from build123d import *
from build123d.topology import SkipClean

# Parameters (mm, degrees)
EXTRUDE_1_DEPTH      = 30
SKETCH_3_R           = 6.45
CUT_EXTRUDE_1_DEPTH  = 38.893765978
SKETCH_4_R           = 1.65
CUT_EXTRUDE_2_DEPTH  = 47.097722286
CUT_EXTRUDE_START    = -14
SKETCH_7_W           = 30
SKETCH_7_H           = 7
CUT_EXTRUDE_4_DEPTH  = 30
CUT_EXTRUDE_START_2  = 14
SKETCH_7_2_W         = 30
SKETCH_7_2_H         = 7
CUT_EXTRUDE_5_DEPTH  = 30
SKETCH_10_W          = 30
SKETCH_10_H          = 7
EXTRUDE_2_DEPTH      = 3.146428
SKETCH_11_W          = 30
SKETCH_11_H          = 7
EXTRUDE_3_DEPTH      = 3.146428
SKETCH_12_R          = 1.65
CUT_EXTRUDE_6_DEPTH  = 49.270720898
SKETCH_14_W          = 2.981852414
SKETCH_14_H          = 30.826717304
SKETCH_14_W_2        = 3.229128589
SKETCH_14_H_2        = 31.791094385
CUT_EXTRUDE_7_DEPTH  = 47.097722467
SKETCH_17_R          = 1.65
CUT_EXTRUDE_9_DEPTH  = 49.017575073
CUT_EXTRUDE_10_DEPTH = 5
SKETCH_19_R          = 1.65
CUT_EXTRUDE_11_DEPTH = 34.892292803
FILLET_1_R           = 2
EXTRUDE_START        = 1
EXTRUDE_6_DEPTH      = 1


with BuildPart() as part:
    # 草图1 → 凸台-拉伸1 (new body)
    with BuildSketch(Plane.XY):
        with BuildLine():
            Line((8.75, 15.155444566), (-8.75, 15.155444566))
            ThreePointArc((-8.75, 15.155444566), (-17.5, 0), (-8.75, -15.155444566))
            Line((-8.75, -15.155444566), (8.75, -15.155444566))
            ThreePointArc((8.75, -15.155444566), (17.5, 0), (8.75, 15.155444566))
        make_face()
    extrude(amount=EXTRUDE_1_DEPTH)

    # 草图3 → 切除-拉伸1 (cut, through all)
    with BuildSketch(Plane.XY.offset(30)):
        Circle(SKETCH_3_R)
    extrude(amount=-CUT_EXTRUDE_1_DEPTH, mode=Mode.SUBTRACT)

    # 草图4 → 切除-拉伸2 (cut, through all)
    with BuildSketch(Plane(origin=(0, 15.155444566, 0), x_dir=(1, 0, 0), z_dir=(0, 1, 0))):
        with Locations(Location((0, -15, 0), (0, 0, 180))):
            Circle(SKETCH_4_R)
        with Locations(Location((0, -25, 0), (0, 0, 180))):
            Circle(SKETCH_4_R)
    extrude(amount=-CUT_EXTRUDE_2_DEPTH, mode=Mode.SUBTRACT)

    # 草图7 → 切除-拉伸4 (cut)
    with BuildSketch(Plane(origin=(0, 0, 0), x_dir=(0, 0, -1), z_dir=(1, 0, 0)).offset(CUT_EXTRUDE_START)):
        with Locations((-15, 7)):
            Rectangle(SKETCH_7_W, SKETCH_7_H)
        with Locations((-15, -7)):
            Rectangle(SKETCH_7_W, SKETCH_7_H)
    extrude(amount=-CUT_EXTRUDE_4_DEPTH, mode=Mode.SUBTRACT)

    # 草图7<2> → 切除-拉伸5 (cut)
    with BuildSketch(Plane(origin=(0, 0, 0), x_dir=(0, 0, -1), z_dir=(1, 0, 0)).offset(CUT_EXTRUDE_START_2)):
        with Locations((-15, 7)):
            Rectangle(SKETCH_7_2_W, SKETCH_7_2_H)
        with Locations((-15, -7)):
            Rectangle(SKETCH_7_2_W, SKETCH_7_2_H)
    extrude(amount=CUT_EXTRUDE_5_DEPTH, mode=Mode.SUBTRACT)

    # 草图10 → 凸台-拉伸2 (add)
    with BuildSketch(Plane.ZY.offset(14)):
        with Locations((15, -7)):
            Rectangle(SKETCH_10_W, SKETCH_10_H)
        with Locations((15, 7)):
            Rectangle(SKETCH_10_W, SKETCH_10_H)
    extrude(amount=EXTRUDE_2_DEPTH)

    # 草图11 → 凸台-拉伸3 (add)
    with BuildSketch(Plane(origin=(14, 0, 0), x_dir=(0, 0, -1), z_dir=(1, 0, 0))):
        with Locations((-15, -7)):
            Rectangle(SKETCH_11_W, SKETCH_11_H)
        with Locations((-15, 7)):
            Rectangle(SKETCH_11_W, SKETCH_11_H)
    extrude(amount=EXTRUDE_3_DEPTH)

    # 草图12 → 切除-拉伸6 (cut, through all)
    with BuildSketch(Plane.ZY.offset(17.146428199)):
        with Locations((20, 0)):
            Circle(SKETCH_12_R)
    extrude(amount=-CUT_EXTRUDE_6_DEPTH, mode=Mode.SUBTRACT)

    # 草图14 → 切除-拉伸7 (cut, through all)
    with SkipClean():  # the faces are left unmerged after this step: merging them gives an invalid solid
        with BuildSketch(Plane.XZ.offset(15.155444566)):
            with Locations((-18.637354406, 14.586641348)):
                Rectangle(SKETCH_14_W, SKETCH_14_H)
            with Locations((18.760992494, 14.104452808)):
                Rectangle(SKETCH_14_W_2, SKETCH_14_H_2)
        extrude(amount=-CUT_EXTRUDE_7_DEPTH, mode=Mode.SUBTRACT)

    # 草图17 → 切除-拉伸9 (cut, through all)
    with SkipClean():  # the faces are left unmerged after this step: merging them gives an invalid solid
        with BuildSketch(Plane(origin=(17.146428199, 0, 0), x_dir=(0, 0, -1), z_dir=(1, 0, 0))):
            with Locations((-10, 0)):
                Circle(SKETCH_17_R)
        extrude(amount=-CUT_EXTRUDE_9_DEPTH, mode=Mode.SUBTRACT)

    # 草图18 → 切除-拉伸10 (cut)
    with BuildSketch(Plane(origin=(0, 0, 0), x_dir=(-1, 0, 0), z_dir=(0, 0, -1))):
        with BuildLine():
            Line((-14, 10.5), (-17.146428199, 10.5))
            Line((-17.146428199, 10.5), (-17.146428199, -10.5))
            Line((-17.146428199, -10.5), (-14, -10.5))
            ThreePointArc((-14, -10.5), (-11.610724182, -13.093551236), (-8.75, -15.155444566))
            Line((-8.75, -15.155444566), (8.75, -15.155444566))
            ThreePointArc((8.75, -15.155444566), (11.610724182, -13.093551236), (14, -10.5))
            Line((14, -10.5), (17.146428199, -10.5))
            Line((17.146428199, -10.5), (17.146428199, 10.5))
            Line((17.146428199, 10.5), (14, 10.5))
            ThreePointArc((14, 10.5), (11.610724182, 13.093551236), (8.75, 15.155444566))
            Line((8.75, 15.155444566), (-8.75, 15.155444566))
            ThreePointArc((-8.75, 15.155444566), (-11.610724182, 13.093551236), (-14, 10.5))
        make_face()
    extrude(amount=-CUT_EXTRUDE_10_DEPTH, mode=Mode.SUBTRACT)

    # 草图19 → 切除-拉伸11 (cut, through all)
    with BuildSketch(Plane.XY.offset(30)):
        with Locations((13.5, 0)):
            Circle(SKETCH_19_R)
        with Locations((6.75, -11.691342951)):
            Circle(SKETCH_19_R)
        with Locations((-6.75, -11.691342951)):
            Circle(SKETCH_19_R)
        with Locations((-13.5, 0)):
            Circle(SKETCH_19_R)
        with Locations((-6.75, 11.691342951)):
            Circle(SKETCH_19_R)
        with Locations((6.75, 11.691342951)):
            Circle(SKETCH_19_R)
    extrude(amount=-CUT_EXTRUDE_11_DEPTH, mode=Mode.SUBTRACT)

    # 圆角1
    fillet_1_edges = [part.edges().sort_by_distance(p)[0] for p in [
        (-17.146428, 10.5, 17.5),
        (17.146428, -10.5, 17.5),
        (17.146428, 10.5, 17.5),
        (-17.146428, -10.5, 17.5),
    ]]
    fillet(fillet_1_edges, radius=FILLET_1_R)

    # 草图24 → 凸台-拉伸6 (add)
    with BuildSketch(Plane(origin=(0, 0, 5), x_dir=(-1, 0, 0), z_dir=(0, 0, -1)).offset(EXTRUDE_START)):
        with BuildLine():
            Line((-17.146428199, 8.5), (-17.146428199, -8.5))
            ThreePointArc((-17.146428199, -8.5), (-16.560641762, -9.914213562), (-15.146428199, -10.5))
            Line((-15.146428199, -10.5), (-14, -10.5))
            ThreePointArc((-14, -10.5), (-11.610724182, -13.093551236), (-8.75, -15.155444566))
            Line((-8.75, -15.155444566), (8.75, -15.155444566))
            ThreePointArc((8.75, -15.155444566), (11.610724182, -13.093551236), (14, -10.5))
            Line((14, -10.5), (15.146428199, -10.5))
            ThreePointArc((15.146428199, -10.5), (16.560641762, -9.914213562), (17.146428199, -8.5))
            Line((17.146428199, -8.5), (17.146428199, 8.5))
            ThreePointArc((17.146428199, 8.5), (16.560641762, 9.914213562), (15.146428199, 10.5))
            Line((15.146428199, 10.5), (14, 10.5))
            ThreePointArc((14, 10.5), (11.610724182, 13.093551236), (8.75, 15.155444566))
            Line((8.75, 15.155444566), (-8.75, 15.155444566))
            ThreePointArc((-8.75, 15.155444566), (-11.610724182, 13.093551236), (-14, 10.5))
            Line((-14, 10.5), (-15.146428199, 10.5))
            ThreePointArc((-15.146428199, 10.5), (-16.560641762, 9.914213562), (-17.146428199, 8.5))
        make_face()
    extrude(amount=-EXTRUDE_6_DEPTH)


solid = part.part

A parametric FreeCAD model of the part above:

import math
import FreeCAD as App
import Part
import Sketcher

V = App.Vector


def edges_at(feature, points):
    """Names of the edges that pass closest to the given points."""
    edges = feature.Shape.Edges
    near = lambda p: min(range(len(edges)), key=lambda i: edges[i].distToShape(Part.Vertex(*p))[0])
    return sorted({f"Edge{near(p) + 1}" for p in points})

doc = App.newDocument("Part")
params = doc.addObject("Spreadsheet::Sheet", "Params")
for row, (alias, value) in enumerate([
    ("sketch1_radius", "17.5 mm"),
    ("sketch1_width", "17.5 mm"),
    ("pad1_length", "30 mm"),
    ("sketch2_diameter", "12.9 mm"),
    ("sketch3_diameter", "3.3 mm"),
    ("sketch4_width", "7 mm"),
    ("sketch4_height", "30 mm"),
    ("pocket3_length", "30 mm"),
    ("sketch5_width", "7 mm"),
    ("sketch5_height", "30 mm"),
    ("pocket4_length", "30 mm"),
    ("sketch6_width", "7 mm"),
    ("sketch6_height", "30 mm"),
    ("pad2_length", "3.146428 mm"),
    ("sketch7_width", "7 mm"),
    ("sketch7_height", "30 mm"),
    ("pad3_length", "3.146428 mm"),
    ("sketch8_diameter", "3.3 mm"),
    ("sketch10_diameter", "3.3 mm"),
    ("sketch11_radius", "17.5 mm"),
    ("sketch11_height", "21 mm"),
    ("sketch11_width", "17.5 mm"),
    ("pocket8_length", "5 mm"),
    ("sketch12_diameter", "3.3 mm"),
    ("fillet_radius", "2 mm"),
    ("sketch13_radius", "2 mm"),
    ("sketch13_radius2", "17.5 mm"),
    ("sketch13_height", "17 mm"),
    ("sketch13_width", "17.5 mm"),
    ("pad4_length", "1 mm"),
], start=1):
    params.set(f"A{row}", alias)
    params.set(f"B{row}", "=" + value)
    params.setAlias(f"B{row}", alias)

body = doc.addObject("PartDesign::Body", "Body")

# Sketch on XY plane
sketch1 = body.newObject("Sketcher::SketchObject", "Sketch")
sketch1.AttachmentSupport = (doc.getObject("XY_Plane"), [""])
sketch1.MapMode = "FlatFace"
sketch1.addGeometry([
    Part.LineSegment(V(8.75, 15.155445, 0), V(-8.75, 15.155445, 0)),
    Part.ArcOfCircle(Part.Circle(V(0, 0, 0), V(0, 0, 1), 17.5), math.radians(120), math.radians(240)),
    Part.LineSegment(V(-8.75, -15.155445, 0), V(8.75, -15.155445, 0)),
    Part.ArcOfCircle(Part.Circle(V(0, 0, 0), V(0, 0, 1), 17.5), math.radians(-60), math.radians(60)),
], False)
sketch1.addConstraint([
    Sketcher.Constraint("Coincident", 0, 2, 1, 1),
    Sketcher.Constraint("Coincident", 1, 2, 2, 1),
    Sketcher.Constraint("Coincident", 2, 2, 3, 1),
    Sketcher.Constraint("Coincident", 3, 2, 0, 1),
    Sketcher.Constraint("Horizontal", 0),
    Sketcher.Constraint("Horizontal", 2),
    Sketcher.Constraint("Coincident", 1, 3, -1, 1),
    Sketcher.Constraint("Coincident", 3, 3, -1, 1),
    Sketcher.Constraint("Equal", 1, 3),
    Sketcher.Constraint("Vertical", 0, 2, 1, 2),
    Sketcher.Constraint("Radius", 1, 17.5),
    Sketcher.Constraint("DistanceX", 0, 2, 0, 1, 17.5),
])
sketch1.setExpression("Constraints[10]", "Params.sketch1_radius")
sketch1.setExpression("Constraints[11]", "Params.sketch1_width")
pad1 = body.newObject("PartDesign::Pad", "Pad")
pad1.Profile = sketch1
pad1.setExpression("Length", "Params.pad1_length")

# Sketch on XY plane
sketch2 = body.newObject("Sketcher::SketchObject", "Sketch001")
sketch2.AttachmentSupport = (doc.getObject("XY_Plane"), [""])
sketch2.MapMode = "FlatFace"
sketch2.AttachmentOffset = App.Placement(V(0, 0, 30), App.Rotation())
sketch2.addGeometry(Part.Circle(V(0, 0, 0), V(0, 0, 1), 6.45), False)
sketch2.addConstraint([
    Sketcher.Constraint("Coincident", 0, 3, -1, 1),
    Sketcher.Constraint("Diameter", 0, 12.9),
])
sketch2.setExpression("Constraints[1]", "Params.sketch2_diameter")
pocket1 = body.newObject("PartDesign::Pocket", "Pocket")
pocket1.Profile = sketch2
pocket1.Type = "ThroughAll"

# Sketch on XZ plane
sketch3 = body.newObject("Sketcher::SketchObject", "Sketch002")
sketch3.AttachmentSupport = (doc.getObject("XZ_Plane"), [""])
sketch3.MapMode = "FlatFace"
sketch3.AttachmentOffset = App.Placement(V(0, 0, -15.155445), App.Rotation())
sketch3.addGeometry([
    Part.Circle(V(0, 15, 0), V(0, 0, 1), 1.65),
    Part.Circle(V(0, 25, 0), V(0, 0, 1), 1.65),
], False)
sketch3.addConstraint([
    Sketcher.Constraint("Equal", 0, 1),
    Sketcher.Constraint("PointOnObject", 0, 3, -2),
    Sketcher.Constraint("PointOnObject", 1, 3, -2),
    Sketcher.Constraint("Diameter", 0, 3.3),
    Sketcher.Constraint("DistanceY", -1, 1, 0, 3, 15.0),
    Sketcher.Constraint("DistanceY", -1, 1, 1, 3, 25.0),
])
sketch3.setExpression("Constraints[3]", "Params.sketch3_diameter")
pocket2 = body.newObject("PartDesign::Pocket", "Pocket001")
pocket2.Profile = sketch3
pocket2.Type = "ThroughAll"
pocket2.Reversed = True

# Sketch on YZ plane
sketch4 = body.newObject("Sketcher::SketchObject", "Sketch003")
sketch4.AttachmentSupport = (doc.getObject("YZ_Plane"), [""])
sketch4.MapMode = "FlatFace"
sketch4.AttachmentOffset = App.Placement(V(0, 0, -14), App.Rotation())
sketch4.addGeometry([
    Part.LineSegment(V(10.5, 30, 0), V(3.5, 30, 0)),  # 0
    Part.LineSegment(V(3.5, 30, 0), V(3.5, 0, 0)),  # 1
    Part.LineSegment(V(3.5, 0, 0), V(10.5, 0, 0)),  # 2
    Part.LineSegment(V(10.5, 0, 0), V(10.5, 30, 0)),  # 3
    Part.LineSegment(V(-3.5, 30, 0), V(-10.5, 30, 0)),  # 4
    Part.LineSegment(V(-10.5, 30, 0), V(-10.5, 0, 0)),  # 5
    Part.LineSegment(V(-10.5, 0, 0), V(-3.5, 0, 0)),  # 6
    Part.LineSegment(V(-3.5, 0, 0), V(-3.5, 30, 0)),  # 7
], False)
sketch4.addConstraint([
    Sketcher.Constraint("Coincident", 0, 2, 1, 1),
    Sketcher.Constraint("Coincident", 1, 2, 2, 1),
    Sketcher.Constraint("Coincident", 2, 2, 3, 1),
    Sketcher.Constraint("Coincident", 3, 2, 0, 1),
    Sketcher.Constraint("Coincident", 4, 2, 5, 1),
    Sketcher.Constraint("Coincident", 5, 2, 6, 1),
    Sketcher.Constraint("Coincident", 6, 2, 7, 1),
    Sketcher.Constraint("Coincident", 7, 2, 4, 1),
    Sketcher.Constraint("Horizontal", 0),
    Sketcher.Constraint("Vertical", 1),
    Sketcher.Constraint("Horizontal", 2),
    Sketcher.Constraint("Vertical", 3),
    Sketcher.Constraint("Horizontal", 4),
    Sketcher.Constraint("Vertical", 5),
    Sketcher.Constraint("Horizontal", 6),
    Sketcher.Constraint("Vertical", 7),
    Sketcher.Constraint("Symmetric", 2, 2, 5, 2, -1, 1),
    Sketcher.Constraint("Symmetric", 1, 2, 6, 2, -2),
    Sketcher.Constraint("Horizontal", 3, 2, 4, 2),
    Sketcher.Constraint("DistanceX", 0, 2, 0, 1, 7.0),
    Sketcher.Constraint("DistanceY", 1, 2, 1, 1, 30.0),
    Sketcher.Constraint("DistanceX", 4, 2, 0, 2, 14.0),
])
sketch4.setExpression("Constraints[19]", "Params.sketch4_width")
sketch4.setExpression("Constraints[20]", "Params.sketch4_height")
pocket3 = body.newObject("PartDesign::Pocket", "Pocket002")
pocket3.Profile = sketch4
pocket3.setExpression("Length", "Params.pocket3_length")

# Sketch on YZ plane
sketch5 = body.newObject("Sketcher::SketchObject", "Sketch004")
sketch5.AttachmentSupport = (doc.getObject("YZ_Plane"), [""])
sketch5.MapMode = "FlatFace"
sketch5.AttachmentOffset = App.Placement(V(0, 0, 14), App.Rotation())
sketch5.addGeometry([
    Part.LineSegment(V(10.5, 30, 0), V(3.5, 30, 0)),  # 0
    Part.LineSegment(V(3.5, 30, 0), V(3.5, 0, 0)),  # 1
    Part.LineSegment(V(3.5, 0, 0), V(10.5, 0, 0)),  # 2
    Part.LineSegment(V(10.5, 0, 0), V(10.5, 30, 0)),  # 3
    Part.LineSegment(V(-3.5, 30, 0), V(-10.5, 30, 0)),  # 4
    Part.LineSegment(V(-10.5, 30, 0), V(-10.5, 0, 0)),  # 5
    Part.LineSegment(V(-10.5, 0, 0), V(-3.5, 0, 0)),  # 6
    Part.LineSegment(V(-3.5, 0, 0), V(-3.5, 30, 0)),  # 7
], False)
sketch5.addConstraint([
    Sketcher.Constraint("Coincident", 0, 2, 1, 1),
    Sketcher.Constraint("Coincident", 1, 2, 2, 1),
    Sketcher.Constraint("Coincident", 2, 2, 3, 1),
    Sketcher.Constraint("Coincident", 3, 2, 0, 1),
    Sketcher.Constraint("Coincident", 4, 2, 5, 1),
    Sketcher.Constraint("Coincident", 5, 2, 6, 1),
    Sketcher.Constraint("Coincident", 6, 2, 7, 1),
    Sketcher.Constraint("Coincident", 7, 2, 4, 1),
    Sketcher.Constraint("Horizontal", 0),
    Sketcher.Constraint("Vertical", 1),
    Sketcher.Constraint("Horizontal", 2),
    Sketcher.Constraint("Vertical", 3),
    Sketcher.Constraint("Horizontal", 4),
    Sketcher.Constraint("Vertical", 5),
    Sketcher.Constraint("Horizontal", 6),
    Sketcher.Constraint("Vertical", 7),
    Sketcher.Constraint("Symmetric", 2, 2, 5, 2, -1, 1),
    Sketcher.Constraint("Symmetric", 1, 2, 6, 2, -2),
    Sketcher.Constraint("Horizontal", 3, 2, 4, 2),
    Sketcher.Constraint("DistanceX", 0, 2, 0, 1, 7.0),
    Sketcher.Constraint("DistanceY", 1, 2, 1, 1, 30.0),
    Sketcher.Constraint("DistanceX", 4, 2, 0, 2, 14.0),
])
sketch5.setExpression("Constraints[19]", "Params.sketch5_width")
sketch5.setExpression("Constraints[20]", "Params.sketch5_height")
pocket4 = body.newObject("PartDesign::Pocket", "Pocket003")
pocket4.Profile = sketch5
pocket4.setExpression("Length", "Params.pocket4_length")
pocket4.Reversed = True

# Sketch on YZ plane
sketch6 = body.newObject("Sketcher::SketchObject", "Sketch005")
sketch6.AttachmentSupport = (doc.getObject("YZ_Plane"), [""])
sketch6.MapMode = "FlatFace"
sketch6.AttachmentOffset = App.Placement(V(0, 0, -14), App.Rotation())
sketch6.addGeometry([
    Part.LineSegment(V(-3.5, 0, 0), V(-10.5, 0, 0)),  # 0
    Part.LineSegment(V(-10.5, 0, 0), V(-10.5, 30, 0)),  # 1
    Part.LineSegment(V(-10.5, 30, 0), V(-3.5, 30, 0)),  # 2
    Part.LineSegment(V(-3.5, 30, 0), V(-3.5, 0, 0)),  # 3
    Part.LineSegment(V(10.5, 0, 0), V(3.5, 0, 0)),  # 4
    Part.LineSegment(V(3.5, 0, 0), V(3.5, 30, 0)),  # 5
    Part.LineSegment(V(3.5, 30, 0), V(10.5, 30, 0)),  # 6
    Part.LineSegment(V(10.5, 30, 0), V(10.5, 0, 0)),  # 7
], False)
sketch6.addConstraint([
    Sketcher.Constraint("Coincident", 0, 2, 1, 1),
    Sketcher.Constraint("Coincident", 1, 2, 2, 1),
    Sketcher.Constraint("Coincident", 2, 2, 3, 1),
    Sketcher.Constraint("Coincident", 3, 2, 0, 1),
    Sketcher.Constraint("Coincident", 4, 2, 5, 1),
    Sketcher.Constraint("Coincident", 5, 2, 6, 1),
    Sketcher.Constraint("Coincident", 6, 2, 7, 1),
    Sketcher.Constraint("Coincident", 7, 2, 4, 1),
    Sketcher.Constraint("Horizontal", 0),
    Sketcher.Constraint("Vertical", 1),
    Sketcher.Constraint("Horizontal", 2),
    Sketcher.Constraint("Vertical", 3),
    Sketcher.Constraint("Horizontal", 4),
    Sketcher.Constraint("Vertical", 5),
    Sketcher.Constraint("Horizontal", 6),
    Sketcher.Constraint("Vertical", 7),
    Sketcher.Constraint("Symmetric", 3, 2, 4, 2, -1, 1),
    Sketcher.Constraint("Symmetric", 1, 2, 6, 2, -2),
    Sketcher.Constraint("PointOnObject", 0, 2, -1),
    Sketcher.Constraint("DistanceX", 0, 2, 0, 1, 7.0),
    Sketcher.Constraint("DistanceY", 1, 1, 1, 2, 30.0),
    Sketcher.Constraint("DistanceX", 3, 2, 4, 2, 7.0),
])
sketch6.setExpression("Constraints[19]", "Params.sketch6_width")
sketch6.setExpression("Constraints[20]", "Params.sketch6_height")
pad2 = body.newObject("PartDesign::Pad", "Pad001")
pad2.Profile = sketch6
pad2.setExpression("Length", "Params.pad2_length")
pad2.Reversed = True

# Sketch on YZ plane
sketch7 = body.newObject("Sketcher::SketchObject", "Sketch006")
sketch7.AttachmentSupport = (doc.getObject("YZ_Plane"), [""])
sketch7.MapMode = "FlatFace"
sketch7.AttachmentOffset = App.Placement(V(0, 0, 14), App.Rotation())
sketch7.addGeometry([
    Part.LineSegment(V(-3.5, 30, 0), V(-10.5, 30, 0)),  # 0
    Part.LineSegment(V(-10.5, 30, 0), V(-10.5, 0, 0)),  # 1
    Part.LineSegment(V(-10.5, 0, 0), V(-3.5, 0, 0)),  # 2
    Part.LineSegment(V(-3.5, 0, 0), V(-3.5, 30, 0)),  # 3
    Part.LineSegment(V(10.5, 30, 0), V(3.5, 30, 0)),  # 4
    Part.LineSegment(V(3.5, 30, 0), V(3.5, 0, 0)),  # 5
    Part.LineSegment(V(3.5, 0, 0), V(10.5, 0, 0)),  # 6
    Part.LineSegment(V(10.5, 0, 0), V(10.5, 30, 0)),  # 7
], False)
sketch7.addConstraint([
    Sketcher.Constraint("Coincident", 0, 2, 1, 1),
    Sketcher.Constraint("Coincident", 1, 2, 2, 1),
    Sketcher.Constraint("Coincident", 2, 2, 3, 1),
    Sketcher.Constraint("Coincident", 3, 2, 0, 1),
    Sketcher.Constraint("Coincident", 4, 2, 5, 1),
    Sketcher.Constraint("Coincident", 5, 2, 6, 1),
    Sketcher.Constraint("Coincident", 6, 2, 7, 1),
    Sketcher.Constraint("Coincident", 7, 2, 4, 1),
    Sketcher.Constraint("Horizontal", 0),
    Sketcher.Constraint("Vertical", 1),
    Sketcher.Constraint("Horizontal", 2),
    Sketcher.Constraint("Vertical", 3),
    Sketcher.Constraint("Horizontal", 4),
    Sketcher.Constraint("Vertical", 5),
    Sketcher.Constraint("Horizontal", 6),
    Sketcher.Constraint("Vertical", 7),
    Sketcher.Constraint("Symmetric", 2, 2, 5, 2, -1, 1),
    Sketcher.Constraint("Symmetric", 1, 2, 6, 2, -2),
    Sketcher.Constraint("Horizontal", 3, 2, 4, 2),
    Sketcher.Constraint("DistanceX", 0, 2, 0, 1, 7.0),
    Sketcher.Constraint("DistanceY", 1, 2, 1, 1, 30.0),
    Sketcher.Constraint("DistanceX", 3, 2, 4, 2, 7.0),
])
sketch7.setExpression("Constraints[19]", "Params.sketch7_width")
sketch7.setExpression("Constraints[20]", "Params.sketch7_height")
pad3 = body.newObject("PartDesign::Pad", "Pad002")
pad3.Profile = sketch7
pad3.setExpression("Length", "Params.pad3_length")

# Sketch on YZ plane
sketch8 = body.newObject("Sketcher::SketchObject", "Sketch007")
sketch8.AttachmentSupport = (doc.getObject("YZ_Plane"), [""])
sketch8.MapMode = "FlatFace"
sketch8.AttachmentOffset = App.Placement(V(0, 0, -17.146428), App.Rotation())
sketch8.addGeometry(Part.Circle(V(0, 20, 0), V(0, 0, 1), 1.65), False)
sketch8.addConstraint([
    Sketcher.Constraint("PointOnObject", 0, 3, -2),
    Sketcher.Constraint("Diameter", 0, 3.3),
    Sketcher.Constraint("DistanceY", -1, 1, 0, 3, 20.0),
])
sketch8.setExpression("Constraints[1]", "Params.sketch8_diameter")
pocket5 = body.newObject("PartDesign::Pocket", "Pocket004")
pocket5.Profile = sketch8
pocket5.Type = "ThroughAll"
pocket5.Reversed = True

# Sketch on XZ plane
sketch9 = body.newObject("Sketcher::SketchObject", "Sketch008")
sketch9.AttachmentSupport = (doc.getObject("XZ_Plane"), [""])
sketch9.MapMode = "FlatFace"
sketch9.AttachmentOffset = App.Placement(V(0, 0, 15.155445), App.Rotation())
sketch9.addGeometry([
    Part.LineSegment(V(-20.128281, 30, 0), V(-20.128281, -0.826717, 0)),  # 0
    Part.LineSegment(V(-20.128281, -0.826717, 0), V(-17.146428, -0.826717, 0)),  # 1
    Part.LineSegment(V(-17.146428, -0.826717, 0), V(-17.146428, 30, 0)),  # 2
    Part.LineSegment(V(-17.146428, 30, 0), V(-20.128281, 30, 0)),  # 3
    Part.LineSegment(V(17.146428, 30, 0), V(17.146428, -1.791094, 0)),  # 4
    Part.LineSegment(V(17.146428, -1.791094, 0), V(20.375557, -1.791094, 0)),  # 5
    Part.LineSegment(V(20.375557, -1.791094, 0), V(20.375557, 30, 0)),  # 6
    Part.LineSegment(V(20.375557, 30, 0), V(17.146428, 30, 0)),  # 7
], False)
sketch9.addConstraint([
    Sketcher.Constraint("Coincident", 0, 2, 1, 1),
    Sketcher.Constraint("Coincident", 1, 2, 2, 1),
    Sketcher.Constraint("Coincident", 2, 2, 3, 1),
    Sketcher.Constraint("Coincident", 3, 2, 0, 1),
    Sketcher.Constraint("Coincident", 4, 2, 5, 1),
    Sketcher.Constraint("Coincident", 5, 2, 6, 1),
    Sketcher.Constraint("Coincident", 6, 2, 7, 1),
    Sketcher.Constraint("Coincident", 7, 2, 4, 1),
    Sketcher.Constraint("Vertical", 0),
    Sketcher.Constraint("Horizontal", 1),
    Sketcher.Constraint("Vertical", 2),
    Sketcher.Constraint("Horizontal", 3),
    Sketcher.Constraint("Vertical", 4),
    Sketcher.Constraint("Horizontal", 5),
    Sketcher.Constraint("Vertical", 6),
    Sketcher.Constraint("Horizontal", 7),
    Sketcher.Constraint("Symmetric", 2, 2, 7, 2, -2),
    Sketcher.Constraint("DistanceY", -1, 1, 2, 2, 30.0),
    Sketcher.Constraint("DistanceX", 5, 1, 5, 2, 3.229129),
    Sketcher.Constraint("DistanceX", 1, 1, 1, 2, 2.981852),
    Sketcher.Constraint("DistanceY", 0, 2, 0, 1, 30.826717),
    Sketcher.Constraint("DistanceY", 4, 2, 4, 1, 31.791094),
    Sketcher.Constraint("DistanceX", 0, 2, -1, 1, 20.128281),
])
pocket6 = body.newObject("PartDesign::Pocket", "Pocket005")
pocket6.Profile = sketch9
pocket6.Type = "ThroughAll"

# Sketch on YZ plane
sketch10 = body.newObject("Sketcher::SketchObject", "Sketch009")
sketch10.AttachmentSupport = (doc.getObject("YZ_Plane"), [""])
sketch10.MapMode = "FlatFace"
sketch10.AttachmentOffset = App.Placement(V(0, 0, 17.146428), App.Rotation())
sketch10.addGeometry(Part.Circle(V(0, 10, 0), V(0, 0, 1), 1.65), False)
sketch10.addConstraint([
    Sketcher.Constraint("PointOnObject", 0, 3, -2),
    Sketcher.Constraint("Diameter", 0, 3.3),
    Sketcher.Constraint("DistanceY", -1, 1, 0, 3, 10.0),
])
sketch10.setExpression("Constraints[1]", "Params.sketch10_diameter")
pocket7 = body.newObject("PartDesign::Pocket", "Pocket006")
pocket7.Profile = sketch10
pocket7.Type = "ThroughAll"

# Sketch on XY plane
sketch11 = body.newObject("Sketcher::SketchObject", "Sketch010")
sketch11.AttachmentSupport = (doc.getObject("XY_Plane"), [""])
sketch11.MapMode = "FlatFace"
sketch11.addGeometry([
    Part.LineSegment(V(14, 10.5, 0), V(17.146428, 10.5, 0)),  # 0
    Part.LineSegment(V(17.146428, 10.5, 0), V(17.146428, -10.5, 0)),  # 1
    Part.LineSegment(V(17.146428, -10.5, 0), V(14, -10.5, 0)),  # 2
    Part.ArcOfCircle(Part.Circle(V(0, 0, 0), V(0, 0, 1), 17.5), math.radians(-60), math.radians(-36.869898)),  # 3
    Part.LineSegment(V(8.75, -15.155445, 0), V(-8.75, -15.155445, 0)),  # 4
    Part.ArcOfCircle(Part.Circle(V(0, 0, 0), V(0, 0, 1), 17.5), math.radians(-143.130102), math.radians(-120)),  # 5
    Part.LineSegment(V(-14, -10.5, 0), V(-17.146428, -10.5, 0)),  # 6
    Part.LineSegment(V(-17.146428, -10.5, 0), V(-17.146428, 10.5, 0)),  # 7
    Part.LineSegment(V(-17.146428, 10.5, 0), V(-14, 10.5, 0)),  # 8
    Part.ArcOfCircle(Part.Circle(V(0, 0, 0), V(0, 0, 1), 17.5), math.radians(120), math.radians(143.130102)),  # 9
    Part.LineSegment(V(-8.75, 15.155445, 0), V(8.75, 15.155445, 0)),  # 10
    Part.ArcOfCircle(Part.Circle(V(0, 0, 0), V(0, 0, 1), 17.5), math.radians(36.869898), math.radians(60)),  # 11
], False)
sketch11.addConstraint([
    Sketcher.Constraint("Coincident", 0, 2, 1, 1),
    Sketcher.Constraint("Coincident", 1, 2, 2, 1),
    Sketcher.Constraint("Coincident", 2, 2, 3, 2),
    Sketcher.Constraint("Coincident", 3, 1, 4, 1),
    Sketcher.Constraint("Coincident", 4, 2, 5, 2),
    Sketcher.Constraint("Coincident", 5, 1, 6, 1),
    Sketcher.Constraint("Coincident", 6, 2, 7, 1),
    Sketcher.Constraint("Coincident", 7, 2, 8, 1),
    Sketcher.Constraint("Coincident", 8, 2, 9, 2),
    Sketcher.Constraint("Coincident", 9, 1, 10, 1),
    Sketcher.Constraint("Coincident", 10, 2, 11, 2),
    Sketcher.Constraint("Coincident", 11, 1, 0, 1),
    Sketcher.Constraint("Horizontal", 0),
    Sketcher.Constraint("Vertical", 1),
    Sketcher.Constraint("Horizontal", 2),
    Sketcher.Constraint("Horizontal", 4),
    Sketcher.Constraint("Horizontal", 6),
    Sketcher.Constraint("Vertical", 7),
    Sketcher.Constraint("Horizontal", 8),
    Sketcher.Constraint("Horizontal", 10),
    Sketcher.Constraint("Coincident", 3, 3, -1, 1),
    Sketcher.Constraint("Coincident", 5, 3, -1, 1),
    Sketcher.Constraint("Coincident", 9, 3, -1, 1),
    Sketcher.Constraint("Coincident", 11, 3, -1, 1),
    Sketcher.Constraint("Equal", 3, 5),
    Sketcher.Constraint("Equal", 5, 9),
    Sketcher.Constraint("Equal", 9, 11),
    Sketcher.Constraint("Symmetric", 0, 2, 6, 2, -1, 1),
    Sketcher.Constraint("Horizontal", 2, 2, 5, 1),
    Sketcher.Constraint("Horizontal", 0, 2, 7, 2),
    Sketcher.Constraint("Vertical", 4, 2, 9, 1),
    Sketcher.Constraint("Radius", 3, 17.5),
    Sketcher.Constraint("DistanceY", 1, 2, 1, 1, 21.0),
    Sketcher.Constraint("DistanceX", 4, 2, 4, 1, 17.5),
    Sketcher.Constraint("DistanceX", 0, 1, 0, 2, 3.146428),
])
sketch11.setExpression("Constraints[31]", "Params.sketch11_radius")
sketch11.setExpression("Constraints[32]", "Params.sketch11_height")
sketch11.setExpression("Constraints[33]", "Params.sketch11_width")
pocket8 = body.newObject("PartDesign::Pocket", "Pocket007")
pocket8.Profile = sketch11
pocket8.setExpression("Length", "Params.pocket8_length")
pocket8.Reversed = True

# Sketch on XY plane
sketch12 = body.newObject("Sketcher::SketchObject", "Sketch011")
sketch12.AttachmentSupport = (doc.getObject("XY_Plane"), [""])
sketch12.MapMode = "FlatFace"
sketch12.AttachmentOffset = App.Placement(V(0, 0, 30), App.Rotation())
sketch12.addGeometry([
    Part.Circle(V(13.5, 0, 0), V(0, 0, 1), 1.65),  # 0
    Part.Circle(V(6.75, -11.691343, 0), V(0, 0, 1), 1.65),  # 1
    Part.Circle(V(-6.75, -11.691343, 0), V(0, 0, 1), 1.65),  # 2
    Part.Circle(V(-13.5, 0, 0), V(0, 0, 1), 1.65),  # 3
    Part.Circle(V(-6.75, 11.691343, 0), V(0, 0, 1), 1.65),  # 4
    Part.Circle(V(6.75, 11.691343, 0), V(0, 0, 1), 1.65),  # 5
], False)
sketch12.addConstraint([
    Sketcher.Constraint("Equal", 0, 1),
    Sketcher.Constraint("Equal", 1, 2),
    Sketcher.Constraint("Equal", 2, 3),
    Sketcher.Constraint("Equal", 3, 4),
    Sketcher.Constraint("Equal", 4, 5),
    Sketcher.Constraint("Symmetric", 0, 3, 3, 3, -1, 1),
    Sketcher.Constraint("Symmetric", 1, 3, 4, 3, -1, 1),
    Sketcher.Constraint("Symmetric", 2, 3, 5, 3, -1, 1),
    Sketcher.Constraint("Symmetric", 1, 3, 2, 3, -2),
    Sketcher.Constraint("PointOnObject", 0, 3, -1),
    Sketcher.Constraint("Diameter", 0, 3.3),
    Sketcher.Constraint("DistanceX", 3, 3, 0, 3, 27.0),
    Sketcher.Constraint("DistanceX", 2, 3, 1, 3, 13.5),
    Sketcher.Constraint("DistanceY", 1, 3, -1, 1, 11.691343),
])
sketch12.setExpression("Constraints[10]", "Params.sketch12_diameter")
pocket9 = body.newObject("PartDesign::Pocket", "Pocket008")
pocket9.Profile = sketch12
pocket9.Type = "ThroughAll"
doc.recompute()

fillet = body.newObject("PartDesign::Fillet", "Fillet")
fillet.Base = (pocket9, edges_at(pocket9, [
    (-17.146, 10.5, 17.5),
    (17.146, -10.5, 17.5),
    (17.146, 10.5, 17.5),
    (-17.146, -10.5, 17.5),
]))
fillet.setExpression("Radius", "Params.fillet_radius")

# Sketch on XY plane
sketch13 = body.newObject("Sketcher::SketchObject", "Sketch012")
sketch13.AttachmentSupport = (doc.getObject("XY_Plane"), [""])
sketch13.MapMode = "FlatFace"
sketch13.AttachmentOffset = App.Placement(V(0, 0, 4), App.Rotation())
sketch13.addGeometry([
    Part.LineSegment(V(17.146428, 8.5, 0), V(17.146428, -8.5, 0)),  # 0
    Part.ArcOfCircle(Part.Circle(V(15.146428, -8.5, 0), V(0, 0, 1), 2), math.radians(-90), math.radians(0)),  # 1
    Part.LineSegment(V(15.146428, -10.5, 0), V(14, -10.5, 0)),  # 2
    Part.ArcOfCircle(Part.Circle(V(0, 0, 0), V(0, 0, 1), 17.5), math.radians(-60), math.radians(-36.869898)),  # 3
    Part.LineSegment(V(8.75, -15.155445, 0), V(-8.75, -15.155445, 0)),  # 4
    Part.ArcOfCircle(Part.Circle(V(0, 0, 0), V(0, 0, 1), 17.5), math.radians(-143.130102), math.radians(-120)),  # 5
    Part.LineSegment(V(-14, -10.5, 0), V(-15.146428, -10.5, 0)),  # 6
    Part.ArcOfCircle(Part.Circle(V(-15.146428, -8.5, 0), V(0, 0, 1), 2), math.radians(180), math.radians(270)),  # 7
    Part.LineSegment(V(-17.146428, -8.5, 0), V(-17.146428, 8.5, 0)),  # 8
    Part.ArcOfCircle(Part.Circle(V(-15.146428, 8.5, 0), V(0, 0, 1), 2), math.radians(90), math.radians(180)),  # 9
    Part.LineSegment(V(-15.146428, 10.5, 0), V(-14, 10.5, 0)),  # 10
    Part.ArcOfCircle(Part.Circle(V(0, 0, 0), V(0, 0, 1), 17.5), math.radians(120), math.radians(143.130102)),  # 11
    Part.LineSegment(V(-8.75, 15.155445, 0), V(8.75, 15.155445, 0)),  # 12
    Part.ArcOfCircle(Part.Circle(V(0, 0, 0), V(0, 0, 1), 17.5), math.radians(36.869898), math.radians(60)),  # 13
    Part.LineSegment(V(14, 10.5, 0), V(15.146428, 10.5, 0)),  # 14
    Part.ArcOfCircle(Part.Circle(V(15.146428, 8.5, 0), V(0, 0, 1), 2), math.radians(0), math.radians(90)),  # 15
], False)
sketch13.addConstraint([
    Sketcher.Constraint("Tangent", 0, 2, 1, 2),
    Sketcher.Constraint("Tangent", 1, 1, 2, 1),
    Sketcher.Constraint("Coincident", 2, 2, 3, 2),
    Sketcher.Constraint("Coincident", 3, 1, 4, 1),
    Sketcher.Constraint("Coincident", 4, 2, 5, 2),
    Sketcher.Constraint("Coincident", 5, 1, 6, 1),
    Sketcher.Constraint("Tangent", 6, 2, 7, 2),
    Sketcher.Constraint("Tangent", 7, 1, 8, 1),
    Sketcher.Constraint("Tangent", 8, 2, 9, 2),
    Sketcher.Constraint("Tangent", 9, 1, 10, 1),
    Sketcher.Constraint("Coincident", 10, 2, 11, 2),
    Sketcher.Constraint("Coincident", 11, 1, 12, 1),
    Sketcher.Constraint("Coincident", 12, 2, 13, 2),
    Sketcher.Constraint("Coincident", 13, 1, 14, 1),
    Sketcher.Constraint("Tangent", 14, 2, 15, 2),
    Sketcher.Constraint("Tangent", 15, 1, 0, 1),
    Sketcher.Constraint("Vertical", 0),
    Sketcher.Constraint("Horizontal", 2),
    Sketcher.Constraint("Horizontal", 4),
    Sketcher.Constraint("Horizontal", 6),
    Sketcher.Constraint("Vertical", 8),
    Sketcher.Constraint("Horizontal", 10),
    Sketcher.Constraint("Horizontal", 12),
    Sketcher.Constraint("Horizontal", 14),
    Sketcher.Constraint("Coincident", 3, 3, -1, 1),
    Sketcher.Constraint("Coincident", 5, 3, -1, 1),
    Sketcher.Constraint("Coincident", 11, 3, -1, 1),
    Sketcher.Constraint("Coincident", 13, 3, -1, 1),
    Sketcher.Constraint("Equal", 3, 5),
    Sketcher.Constraint("Equal", 1, 7),
    Sketcher.Constraint("Equal", 7, 9),
    Sketcher.Constraint("Equal", 5, 11),
    Sketcher.Constraint("Equal", 11, 13),
    Sketcher.Constraint("Equal", 9, 15),
    Sketcher.Constraint("Symmetric", 1, 3, 9, 3, -1, 1),
    Sketcher.Constraint("Horizontal", 1, 3, 7, 3),
    Sketcher.Constraint("Horizontal", 9, 3, 15, 3),
    Sketcher.Constraint("Vertical", 4, 2, 11, 1),
    Sketcher.Constraint("Radius", 1, 2.0),
    Sketcher.Constraint("Radius", 3, 17.5),
    Sketcher.Constraint("DistanceY", 0, 2, 0, 1, 17.0),
    Sketcher.Constraint("DistanceX", 4, 2, 4, 1, 17.5),
    Sketcher.Constraint("DistanceX", 2, 2, 2, 1, 1.146428),
])
sketch13.setExpression("Constraints[38]", "Params.sketch13_radius")
sketch13.setExpression("Constraints[39]", "Params.sketch13_radius2")
sketch13.setExpression("Constraints[40]", "Params.sketch13_height")
sketch13.setExpression("Constraints[41]", "Params.sketch13_width")
pad4 = body.newObject("PartDesign::Pad", "Pad003")
pad4.Profile = sketch13
pad4.setExpression("Length", "Params.pad4_length")

doc.recompute()
